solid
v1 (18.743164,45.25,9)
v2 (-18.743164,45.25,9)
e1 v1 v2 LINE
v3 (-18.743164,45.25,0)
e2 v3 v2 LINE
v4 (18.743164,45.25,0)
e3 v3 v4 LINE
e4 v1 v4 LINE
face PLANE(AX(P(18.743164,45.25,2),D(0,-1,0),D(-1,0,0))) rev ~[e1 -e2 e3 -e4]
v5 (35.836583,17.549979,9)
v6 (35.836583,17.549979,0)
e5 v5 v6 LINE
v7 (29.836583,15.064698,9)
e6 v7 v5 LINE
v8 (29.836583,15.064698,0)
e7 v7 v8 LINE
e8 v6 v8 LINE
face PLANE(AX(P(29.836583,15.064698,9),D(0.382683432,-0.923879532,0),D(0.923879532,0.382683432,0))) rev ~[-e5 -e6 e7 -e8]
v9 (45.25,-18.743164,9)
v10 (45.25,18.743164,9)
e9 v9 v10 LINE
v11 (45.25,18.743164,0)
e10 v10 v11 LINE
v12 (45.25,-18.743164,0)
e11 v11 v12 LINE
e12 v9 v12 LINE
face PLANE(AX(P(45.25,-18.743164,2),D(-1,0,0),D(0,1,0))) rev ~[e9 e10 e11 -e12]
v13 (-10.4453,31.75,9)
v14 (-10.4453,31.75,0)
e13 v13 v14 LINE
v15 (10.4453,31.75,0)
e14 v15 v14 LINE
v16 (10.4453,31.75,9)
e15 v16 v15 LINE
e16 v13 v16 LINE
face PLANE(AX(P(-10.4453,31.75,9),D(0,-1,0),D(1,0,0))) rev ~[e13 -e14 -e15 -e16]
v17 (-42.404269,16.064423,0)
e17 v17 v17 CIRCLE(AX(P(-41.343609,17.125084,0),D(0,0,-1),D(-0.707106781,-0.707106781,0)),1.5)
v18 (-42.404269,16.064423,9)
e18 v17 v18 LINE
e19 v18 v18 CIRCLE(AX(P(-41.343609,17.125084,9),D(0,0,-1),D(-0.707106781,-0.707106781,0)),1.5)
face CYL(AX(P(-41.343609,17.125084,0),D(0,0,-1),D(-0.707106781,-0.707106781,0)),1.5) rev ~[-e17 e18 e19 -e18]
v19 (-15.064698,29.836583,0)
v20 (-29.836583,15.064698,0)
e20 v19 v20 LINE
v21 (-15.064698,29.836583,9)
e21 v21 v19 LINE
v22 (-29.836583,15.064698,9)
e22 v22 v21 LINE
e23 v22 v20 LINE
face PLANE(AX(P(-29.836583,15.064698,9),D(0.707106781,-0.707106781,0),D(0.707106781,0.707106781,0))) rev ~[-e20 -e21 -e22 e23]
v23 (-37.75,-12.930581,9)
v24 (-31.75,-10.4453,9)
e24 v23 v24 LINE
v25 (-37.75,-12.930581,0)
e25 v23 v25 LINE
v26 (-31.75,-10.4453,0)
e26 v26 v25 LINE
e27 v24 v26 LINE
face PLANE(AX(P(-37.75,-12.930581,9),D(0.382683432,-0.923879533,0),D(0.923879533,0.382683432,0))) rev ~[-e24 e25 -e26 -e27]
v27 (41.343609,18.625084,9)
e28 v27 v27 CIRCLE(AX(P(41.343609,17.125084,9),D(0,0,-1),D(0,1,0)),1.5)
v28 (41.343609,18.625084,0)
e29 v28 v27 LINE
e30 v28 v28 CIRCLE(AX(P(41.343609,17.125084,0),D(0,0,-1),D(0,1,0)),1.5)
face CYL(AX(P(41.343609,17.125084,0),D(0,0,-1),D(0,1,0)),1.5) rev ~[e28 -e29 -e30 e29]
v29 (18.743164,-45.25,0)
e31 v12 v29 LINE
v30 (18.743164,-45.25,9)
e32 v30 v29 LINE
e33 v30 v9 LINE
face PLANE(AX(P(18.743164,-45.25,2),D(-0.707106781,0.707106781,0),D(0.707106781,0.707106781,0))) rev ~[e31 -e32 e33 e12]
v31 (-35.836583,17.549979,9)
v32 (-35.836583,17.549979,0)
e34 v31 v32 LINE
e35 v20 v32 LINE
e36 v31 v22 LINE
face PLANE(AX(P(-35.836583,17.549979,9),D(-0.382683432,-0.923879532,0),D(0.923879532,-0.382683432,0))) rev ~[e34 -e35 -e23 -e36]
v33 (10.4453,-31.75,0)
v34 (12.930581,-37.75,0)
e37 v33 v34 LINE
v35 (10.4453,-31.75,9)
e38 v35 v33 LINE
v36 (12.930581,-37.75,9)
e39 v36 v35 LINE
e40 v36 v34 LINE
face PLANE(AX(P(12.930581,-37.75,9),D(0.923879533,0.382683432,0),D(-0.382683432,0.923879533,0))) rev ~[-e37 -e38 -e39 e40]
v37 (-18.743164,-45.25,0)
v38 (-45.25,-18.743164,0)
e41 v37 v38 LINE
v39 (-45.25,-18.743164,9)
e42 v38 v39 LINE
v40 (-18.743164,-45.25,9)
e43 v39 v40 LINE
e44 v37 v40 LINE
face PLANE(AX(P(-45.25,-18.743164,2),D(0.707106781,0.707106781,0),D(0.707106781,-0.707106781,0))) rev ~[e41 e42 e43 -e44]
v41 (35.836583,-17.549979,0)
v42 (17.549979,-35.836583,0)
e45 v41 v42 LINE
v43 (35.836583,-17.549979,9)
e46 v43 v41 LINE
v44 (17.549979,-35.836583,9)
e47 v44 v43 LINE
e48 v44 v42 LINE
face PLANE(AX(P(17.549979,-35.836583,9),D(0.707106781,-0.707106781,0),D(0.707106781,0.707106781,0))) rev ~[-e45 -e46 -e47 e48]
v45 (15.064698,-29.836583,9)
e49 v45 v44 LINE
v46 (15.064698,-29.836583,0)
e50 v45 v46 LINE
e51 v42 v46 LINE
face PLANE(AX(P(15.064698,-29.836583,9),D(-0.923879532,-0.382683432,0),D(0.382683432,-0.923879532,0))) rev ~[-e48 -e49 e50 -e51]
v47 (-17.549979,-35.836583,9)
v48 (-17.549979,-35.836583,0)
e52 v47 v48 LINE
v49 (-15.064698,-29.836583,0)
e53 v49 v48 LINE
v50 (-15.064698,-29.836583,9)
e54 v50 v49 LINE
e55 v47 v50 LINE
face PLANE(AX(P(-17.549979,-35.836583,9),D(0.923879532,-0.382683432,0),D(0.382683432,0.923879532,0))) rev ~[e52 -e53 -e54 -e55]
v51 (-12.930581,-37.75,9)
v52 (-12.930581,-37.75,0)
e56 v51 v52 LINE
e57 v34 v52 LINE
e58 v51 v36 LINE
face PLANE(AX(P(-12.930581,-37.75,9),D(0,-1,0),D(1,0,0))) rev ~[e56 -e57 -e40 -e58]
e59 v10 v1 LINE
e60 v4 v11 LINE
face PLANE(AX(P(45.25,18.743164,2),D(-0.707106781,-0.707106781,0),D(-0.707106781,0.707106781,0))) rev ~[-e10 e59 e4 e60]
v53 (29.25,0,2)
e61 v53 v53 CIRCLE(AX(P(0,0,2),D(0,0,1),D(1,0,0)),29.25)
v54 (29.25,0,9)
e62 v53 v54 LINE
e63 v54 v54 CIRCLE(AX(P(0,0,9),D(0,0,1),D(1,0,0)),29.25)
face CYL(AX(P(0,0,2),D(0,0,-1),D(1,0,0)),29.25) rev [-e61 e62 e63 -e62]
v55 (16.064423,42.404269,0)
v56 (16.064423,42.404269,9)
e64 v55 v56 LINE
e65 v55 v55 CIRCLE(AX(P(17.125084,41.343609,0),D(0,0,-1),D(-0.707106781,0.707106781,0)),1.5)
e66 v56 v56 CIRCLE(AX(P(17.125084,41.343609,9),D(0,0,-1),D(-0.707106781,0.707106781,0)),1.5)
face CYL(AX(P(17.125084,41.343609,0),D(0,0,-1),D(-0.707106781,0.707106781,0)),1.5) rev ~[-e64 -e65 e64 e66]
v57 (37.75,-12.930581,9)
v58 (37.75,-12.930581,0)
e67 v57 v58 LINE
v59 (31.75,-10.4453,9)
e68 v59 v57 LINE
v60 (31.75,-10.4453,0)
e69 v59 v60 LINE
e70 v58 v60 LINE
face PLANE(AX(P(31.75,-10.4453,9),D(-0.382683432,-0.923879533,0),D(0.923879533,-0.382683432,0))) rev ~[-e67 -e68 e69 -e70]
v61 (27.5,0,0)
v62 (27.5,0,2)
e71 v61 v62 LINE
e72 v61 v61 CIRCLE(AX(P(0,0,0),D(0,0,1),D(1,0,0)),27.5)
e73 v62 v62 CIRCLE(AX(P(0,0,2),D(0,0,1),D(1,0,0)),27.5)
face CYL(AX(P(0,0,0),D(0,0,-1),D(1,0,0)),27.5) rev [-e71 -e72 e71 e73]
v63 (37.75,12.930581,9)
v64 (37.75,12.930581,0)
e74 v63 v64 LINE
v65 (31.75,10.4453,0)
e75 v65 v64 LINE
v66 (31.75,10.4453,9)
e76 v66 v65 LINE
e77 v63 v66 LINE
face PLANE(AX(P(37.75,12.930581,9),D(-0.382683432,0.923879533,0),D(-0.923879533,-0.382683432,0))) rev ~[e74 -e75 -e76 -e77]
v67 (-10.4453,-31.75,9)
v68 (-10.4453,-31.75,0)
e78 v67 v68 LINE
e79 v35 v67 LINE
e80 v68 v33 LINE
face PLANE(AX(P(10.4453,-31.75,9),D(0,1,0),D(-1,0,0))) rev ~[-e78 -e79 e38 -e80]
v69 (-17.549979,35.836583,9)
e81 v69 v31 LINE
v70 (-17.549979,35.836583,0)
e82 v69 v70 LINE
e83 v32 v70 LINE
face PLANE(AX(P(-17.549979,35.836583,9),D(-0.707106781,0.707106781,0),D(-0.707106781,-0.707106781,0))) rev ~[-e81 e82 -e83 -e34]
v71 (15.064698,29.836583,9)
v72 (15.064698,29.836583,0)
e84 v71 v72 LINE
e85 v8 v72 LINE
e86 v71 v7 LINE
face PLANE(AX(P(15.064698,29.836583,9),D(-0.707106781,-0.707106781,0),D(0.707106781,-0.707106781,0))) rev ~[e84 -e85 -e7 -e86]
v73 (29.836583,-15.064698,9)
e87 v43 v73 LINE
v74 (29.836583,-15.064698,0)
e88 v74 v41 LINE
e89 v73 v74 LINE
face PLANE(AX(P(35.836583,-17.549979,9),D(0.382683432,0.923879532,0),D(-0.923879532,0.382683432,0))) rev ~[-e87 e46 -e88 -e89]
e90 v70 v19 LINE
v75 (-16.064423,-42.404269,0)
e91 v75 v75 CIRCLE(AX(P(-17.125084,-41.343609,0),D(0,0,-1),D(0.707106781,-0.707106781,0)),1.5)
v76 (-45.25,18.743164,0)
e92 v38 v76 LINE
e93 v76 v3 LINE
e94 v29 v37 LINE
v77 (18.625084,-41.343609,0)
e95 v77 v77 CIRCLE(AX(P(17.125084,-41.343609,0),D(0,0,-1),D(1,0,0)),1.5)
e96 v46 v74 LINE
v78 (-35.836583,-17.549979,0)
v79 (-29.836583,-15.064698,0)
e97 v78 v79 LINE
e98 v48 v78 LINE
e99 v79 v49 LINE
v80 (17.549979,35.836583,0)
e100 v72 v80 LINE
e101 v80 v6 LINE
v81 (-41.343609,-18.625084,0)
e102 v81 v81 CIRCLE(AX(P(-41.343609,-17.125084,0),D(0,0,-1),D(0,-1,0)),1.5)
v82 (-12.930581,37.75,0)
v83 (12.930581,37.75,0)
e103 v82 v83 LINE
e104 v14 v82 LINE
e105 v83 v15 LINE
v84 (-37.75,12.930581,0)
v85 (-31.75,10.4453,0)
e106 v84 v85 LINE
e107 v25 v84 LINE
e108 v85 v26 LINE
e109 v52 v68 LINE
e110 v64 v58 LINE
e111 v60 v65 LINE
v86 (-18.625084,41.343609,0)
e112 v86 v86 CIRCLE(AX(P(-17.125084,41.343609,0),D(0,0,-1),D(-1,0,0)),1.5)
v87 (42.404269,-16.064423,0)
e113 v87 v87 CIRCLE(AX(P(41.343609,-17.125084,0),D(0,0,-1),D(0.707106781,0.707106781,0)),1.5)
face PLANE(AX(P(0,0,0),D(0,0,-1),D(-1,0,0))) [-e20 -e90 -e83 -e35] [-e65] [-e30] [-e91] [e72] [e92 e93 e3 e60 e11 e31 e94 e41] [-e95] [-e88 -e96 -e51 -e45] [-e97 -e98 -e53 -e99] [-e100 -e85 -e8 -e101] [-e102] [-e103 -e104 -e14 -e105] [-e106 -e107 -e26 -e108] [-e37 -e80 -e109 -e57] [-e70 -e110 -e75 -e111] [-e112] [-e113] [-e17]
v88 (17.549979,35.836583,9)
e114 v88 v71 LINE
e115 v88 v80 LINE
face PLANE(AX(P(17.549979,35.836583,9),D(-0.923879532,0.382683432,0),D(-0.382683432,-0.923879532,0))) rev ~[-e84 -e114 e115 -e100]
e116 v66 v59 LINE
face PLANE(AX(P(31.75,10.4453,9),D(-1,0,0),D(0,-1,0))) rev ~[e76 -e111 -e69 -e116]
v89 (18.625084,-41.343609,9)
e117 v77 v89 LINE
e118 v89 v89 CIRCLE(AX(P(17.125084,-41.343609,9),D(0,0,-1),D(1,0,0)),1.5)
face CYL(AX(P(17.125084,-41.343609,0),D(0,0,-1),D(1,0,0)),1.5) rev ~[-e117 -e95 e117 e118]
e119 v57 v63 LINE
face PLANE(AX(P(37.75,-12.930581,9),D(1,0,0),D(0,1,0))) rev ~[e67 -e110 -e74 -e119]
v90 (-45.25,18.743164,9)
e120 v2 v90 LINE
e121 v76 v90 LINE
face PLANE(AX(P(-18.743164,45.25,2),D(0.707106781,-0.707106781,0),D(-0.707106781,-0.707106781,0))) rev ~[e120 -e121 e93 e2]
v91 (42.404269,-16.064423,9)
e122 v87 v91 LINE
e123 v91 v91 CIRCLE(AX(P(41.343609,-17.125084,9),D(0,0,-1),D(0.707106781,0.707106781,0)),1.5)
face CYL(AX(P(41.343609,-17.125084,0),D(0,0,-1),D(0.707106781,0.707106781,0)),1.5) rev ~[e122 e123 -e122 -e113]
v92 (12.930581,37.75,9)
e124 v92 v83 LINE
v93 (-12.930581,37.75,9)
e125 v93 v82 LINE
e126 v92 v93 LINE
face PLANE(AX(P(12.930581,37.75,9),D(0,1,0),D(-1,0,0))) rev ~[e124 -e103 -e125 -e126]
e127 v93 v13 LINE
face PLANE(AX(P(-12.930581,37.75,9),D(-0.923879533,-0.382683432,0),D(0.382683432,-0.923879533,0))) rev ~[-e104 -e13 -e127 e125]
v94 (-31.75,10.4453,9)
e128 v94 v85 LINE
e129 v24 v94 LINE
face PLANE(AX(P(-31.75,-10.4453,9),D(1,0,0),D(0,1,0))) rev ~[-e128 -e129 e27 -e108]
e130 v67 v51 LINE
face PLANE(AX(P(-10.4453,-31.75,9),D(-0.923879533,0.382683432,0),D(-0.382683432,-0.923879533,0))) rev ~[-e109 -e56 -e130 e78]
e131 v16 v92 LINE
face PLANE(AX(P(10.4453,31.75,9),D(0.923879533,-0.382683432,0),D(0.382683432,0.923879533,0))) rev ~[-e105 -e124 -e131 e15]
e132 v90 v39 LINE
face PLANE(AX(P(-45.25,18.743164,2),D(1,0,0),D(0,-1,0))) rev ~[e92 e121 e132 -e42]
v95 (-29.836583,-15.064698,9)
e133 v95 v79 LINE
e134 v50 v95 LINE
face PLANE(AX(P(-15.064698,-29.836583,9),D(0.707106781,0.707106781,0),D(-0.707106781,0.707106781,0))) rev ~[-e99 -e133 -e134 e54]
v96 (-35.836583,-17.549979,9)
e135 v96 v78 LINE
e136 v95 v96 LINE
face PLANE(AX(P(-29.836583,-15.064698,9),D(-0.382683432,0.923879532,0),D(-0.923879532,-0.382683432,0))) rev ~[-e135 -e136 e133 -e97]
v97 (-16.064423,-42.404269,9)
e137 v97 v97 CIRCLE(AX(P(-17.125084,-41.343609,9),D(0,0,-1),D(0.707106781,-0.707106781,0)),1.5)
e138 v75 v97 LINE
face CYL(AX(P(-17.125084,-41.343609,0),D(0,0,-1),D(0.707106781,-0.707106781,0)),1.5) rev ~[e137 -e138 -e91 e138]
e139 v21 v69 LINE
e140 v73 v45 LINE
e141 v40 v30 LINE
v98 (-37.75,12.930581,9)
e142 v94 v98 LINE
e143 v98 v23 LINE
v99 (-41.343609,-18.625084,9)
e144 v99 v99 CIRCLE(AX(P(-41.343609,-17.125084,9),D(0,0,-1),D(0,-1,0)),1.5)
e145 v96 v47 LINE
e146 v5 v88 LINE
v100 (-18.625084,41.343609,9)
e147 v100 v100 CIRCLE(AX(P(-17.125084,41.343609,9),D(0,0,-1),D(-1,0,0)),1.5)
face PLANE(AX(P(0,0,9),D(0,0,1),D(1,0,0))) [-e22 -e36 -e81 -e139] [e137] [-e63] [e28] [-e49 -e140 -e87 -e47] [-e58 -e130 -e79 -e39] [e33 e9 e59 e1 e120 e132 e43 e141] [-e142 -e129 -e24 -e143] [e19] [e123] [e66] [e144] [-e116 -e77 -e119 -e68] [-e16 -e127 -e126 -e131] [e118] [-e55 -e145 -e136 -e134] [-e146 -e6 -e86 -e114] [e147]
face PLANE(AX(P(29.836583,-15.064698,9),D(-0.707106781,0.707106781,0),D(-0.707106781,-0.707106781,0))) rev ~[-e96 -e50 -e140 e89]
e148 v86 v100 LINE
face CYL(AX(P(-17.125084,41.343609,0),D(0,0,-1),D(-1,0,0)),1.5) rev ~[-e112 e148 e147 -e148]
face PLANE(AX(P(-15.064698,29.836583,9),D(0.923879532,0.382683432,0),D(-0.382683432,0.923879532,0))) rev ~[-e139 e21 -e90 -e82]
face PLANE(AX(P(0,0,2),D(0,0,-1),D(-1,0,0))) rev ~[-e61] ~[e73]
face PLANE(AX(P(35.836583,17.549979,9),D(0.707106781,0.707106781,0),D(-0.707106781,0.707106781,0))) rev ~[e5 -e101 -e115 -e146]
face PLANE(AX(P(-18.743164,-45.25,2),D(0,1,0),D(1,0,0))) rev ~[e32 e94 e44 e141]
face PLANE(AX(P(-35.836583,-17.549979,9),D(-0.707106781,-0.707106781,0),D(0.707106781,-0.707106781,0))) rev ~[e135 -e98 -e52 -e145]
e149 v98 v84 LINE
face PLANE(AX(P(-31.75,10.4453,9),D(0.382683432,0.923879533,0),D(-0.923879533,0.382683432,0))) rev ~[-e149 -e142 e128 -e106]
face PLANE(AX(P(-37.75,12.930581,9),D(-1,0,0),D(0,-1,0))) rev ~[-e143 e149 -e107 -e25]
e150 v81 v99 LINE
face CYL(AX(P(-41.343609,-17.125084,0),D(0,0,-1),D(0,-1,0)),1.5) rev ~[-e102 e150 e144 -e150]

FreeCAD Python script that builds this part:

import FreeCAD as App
import Part
import Sketcher
from FreeCAD import Vector
Q = App.Units.Quantity


def add_polygon(sketch, points):
    """Adds a closed chain of lines whose ends are joined by coincident constraints."""
    first, n = sketch.GeometryCount, len(points)
    for a, b in zip(points, points[1:] + points[:1]):
        sketch.addGeometry(Part.LineSegment(App.Vector(*a, 0), App.Vector(*b, 0)), False)
    for i in range(n):
        sketch.addConstraint(Sketcher.Constraint("Coincident", first + i, 2, first + (i + 1) % n, 1))

doc = App.newDocument("Part")
params = doc.addObject("Spreadsheet::Sheet", "Params")
for row, (alias, value) in enumerate([
    ("sketch1_diameter", "55 mm"),
    ("pad1_length", "2 mm"),
    ("sketch2_diameter", "58.5 mm"),
    ("pad2_length", "7 mm"),
    ("sketch3_diameter", "3 mm"),
], start=1):
    params.set(f"A{row}", alias)
    params.set(f"B{row}", "=" + value)
    params.setAlias(f"B{row}", alias)

body = doc.addObject("PartDesign::Body", "Body")

# Sketch on XY plane
sketch1 = body.newObject("Sketcher::SketchObject", "Sketch")
sketch1.AttachmentSupport = (doc.getObject("XY_Plane"), [""])
sketch1.MapMode = "FlatFace"
add_polygon(sketch1, [(-45, 19), (-45, -19), (-19, -45), (19, -45), (45, -19), (45, 19), (19, 45), (-19, 45)])  # lines 0-7
sketch1.addGeometry(Part.Circle(Vector(0, 0, 0), Vector(0, 0, 1), 28), False)  # 8
sketch1.addConstraint(Sketcher.Constraint("Vertical", 0))
sketch1.addConstraint(Sketcher.Constraint("Horizontal", 2))
sketch1.addConstraint(Sketcher.Constraint("Vertical", 4))
sketch1.addConstraint(Sketcher.Constraint("Horizontal", 6))
sketch1.addConstraint(Sketcher.Constraint("Coincident", 8, 3, -1, 1))
sketch1.addConstraint(Sketcher.Constraint("Symmetric", 0, 2, 4, 2, -1, 1))
sketch1.addConstraint(Sketcher.Constraint("Symmetric", 1, 2, 5, 2, -1, 1))
sketch1.addConstraint(Sketcher.Constraint("Perpendicular", 1, 3))
sketch1.addConstraint(Sketcher.Constraint("Perpendicular", 5, 7))
sketch1.addConstraint(Sketcher.Constraint("Horizontal", 0, 2, 3, 2))
sketch1.addConstraint(Sketcher.Constraint("Horizontal", 4, 2, 7, 2))
sketch1.addConstraint(Sketcher.Constraint("Vertical", 2, 2, 5, 2))
sketch1.addConstraint(Sketcher.Constraint("Equal", 6, 0))
sketch1.addConstraint(Sketcher.Constraint("Diameter", 8, 55.0))
sketch1.addConstraint(Sketcher.Constraint("DistanceX", 0, 2, 3, 2, 90.5))
sketch1.addConstraint(Sketcher.Constraint("DistanceX", 2, 1, 2, 2, 37.486327))
sketch1.setExpression("Constraints[21]", "Params.sketch1_diameter")
pad1 = body.newObject("PartDesign::Pad", "Pad")
pad1.Profile = sketch1
pad1.setExpression("Length", "Params.pad1_length")

# Sketch on XY plane
sketch2 = body.newObject("Sketcher::SketchObject", "Sketch001")
sketch2.AttachmentSupport = (doc.getObject("XY_Plane"), [""])
sketch2.MapMode = "FlatFace"
sketch2.AttachmentOffset = App.Placement(Vector(0, 0, 2), App.Rotation())
add_polygon(sketch2, [(19, 45), (-19, 45), (-45, 19), (-45, -19), (-19, -45), (19, -45), (45, -19), (45, 19)])  # lines 0-7
sketch2.addGeometry(Part.Circle(Vector(0, 0, 0), Vector(0, 0, 1), 29), False)  # 8
sketch2.addConstraint(Sketcher.Constraint("Horizontal", 0))
sketch2.addConstraint(Sketcher.Constraint("Vertical", 2))
sketch2.addConstraint(Sketcher.Constraint("Horizontal", 4))
sketch2.addConstraint(Sketcher.Constraint("Vertical", 6))
sketch2.addConstraint(Sketcher.Constraint("Coincident", 8, 3, -1, 1))
sketch2.addConstraint(Sketcher.Constraint("Symmetric", 0, 2, 4, 2, -1, 1))
sketch2.addConstraint(Sketcher.Constraint("Symmetric", 1, 2, 5, 2, -1, 1))
sketch2.addConstraint(Sketcher.Constraint("Perpendicular", 1, 3))
sketch2.addConstraint(Sketcher.Constraint("Perpendicular", 5, 7))
sketch2.addConstraint(Sketcher.Constraint("Horizontal", 2, 2, 5, 2))
sketch2.addConstraint(Sketcher.Constraint("Horizontal", 1, 2, 6, 2))
sketch2.addConstraint(Sketcher.Constraint("Vertical", 0, 2, 3, 2))
sketch2.addConstraint(Sketcher.Constraint("Equal", 4, 2))
sketch2.addConstraint(Sketcher.Constraint("Diameter", 8, 58.5))
sketch2.addConstraint(Sketcher.Constraint("DistanceY", 3, 2, 0, 2, 90.5))
sketch2.addConstraint(Sketcher.Constraint("DistanceX", 0, 2, 0, 1, 37.486327))
sketch2.setExpression("Constraints[21]", "Params.sketch2_diameter")
pad2 = body.newObject("PartDesign::Pad", "Pad001")
pad2.Profile = sketch2
pad2.setExpression("Length", "Params.pad2_length")

# Sketch on XY plane
sketch3 = body.newObject("Sketcher::SketchObject", "Sketch002")
sketch3.AttachmentSupport = (doc.getObject("XY_Plane"), [""])
sketch3.MapMode = "FlatFace"
sketch3.addGeometry(Part.Circle(Vector(-17.1, 41.3, 0), Vector(0, 0, 1), 1.5), False)
sketch3.addConstraint(Sketcher.Constraint("Diameter", 0, 3.0))
sketch3.addConstraint(Sketcher.Constraint("DistanceY", -1, 1, 0, 3, 41.343609))
sketch3.addConstraint(Sketcher.Constraint("DistanceX", 0, 3, -1, 1, 17.125084))
sketch3.setExpression("Constraints[0]", "Params.sketch3_diameter")
pocket1 = body.newObject("PartDesign::Pocket", "Pocket")
pocket1.Profile = sketch3
pocket1.Type = "ThroughAll"
pocket1.Reversed = True
doc.recompute()

polarpattern = body.newObject("PartDesign::PolarPattern", "PolarPattern")
polarpattern.Originals = [pocket1]
polarpattern.Axis = (doc.getObject("Z_Axis"), [""])
polarpattern.Angle = 360
polarpattern.Occurrences = 8
body.Tip = polarpattern

# Sketch on XY plane
sketch4 = body.newObject("Sketcher::SketchObject", "Sketch003")
sketch4.AttachmentSupport = (doc.getObject("XY_Plane"), [""])
sketch4.MapMode = "FlatFace"
sketch4.AttachmentOffset = App.Placement(Vector(0, 0, 9), App.Rotation())
add_polygon(sketch4, [(-10, 32), (10, 32), (13, 38), (-13, 38)])  # lines 0-3
sketch4.addConstraint(Sketcher.Constraint("Horizontal", 0))
sketch4.addConstraint(Sketcher.Constraint("Horizontal", 2))
sketch4.addConstraint(Sketcher.Constraint("Equal", 1, 3))
sketch4.addConstraint(Sketcher.Constraint("Angle", 1, Q("67.5 deg")))
sketch4.addConstraint(Sketcher.Constraint("DistanceY", 0, 2, 1, 2, 6.0))
sketch4.addConstraint(Sketcher.Constraint("DistanceY", -1, 1, 0, 2, 31.75))
sketch4.addConstraint(Sketcher.Constraint("DistanceX", 0, 1, 0, 2, 20.8906))
sketch4.addConstraint(Sketcher.Constraint("DistanceX", -1, 1, 0, 2, 10.4453))
pocket2 = body.newObject("PartDesign::Pocket", "Pocket001")
pocket2.Profile = sketch4
pocket2.Type = "ThroughAll"
doc.recompute()

polarpattern2 = body.newObject("PartDesign::PolarPattern", "PolarPattern001")
polarpattern2.Originals = [pocket2]
polarpattern2.Axis = (doc.getObject("Z_Axis"), [""])
polarpattern2.Angle = 360
polarpattern2.Occurrences = 8
body.Tip = polarpattern2

doc.recompute()
